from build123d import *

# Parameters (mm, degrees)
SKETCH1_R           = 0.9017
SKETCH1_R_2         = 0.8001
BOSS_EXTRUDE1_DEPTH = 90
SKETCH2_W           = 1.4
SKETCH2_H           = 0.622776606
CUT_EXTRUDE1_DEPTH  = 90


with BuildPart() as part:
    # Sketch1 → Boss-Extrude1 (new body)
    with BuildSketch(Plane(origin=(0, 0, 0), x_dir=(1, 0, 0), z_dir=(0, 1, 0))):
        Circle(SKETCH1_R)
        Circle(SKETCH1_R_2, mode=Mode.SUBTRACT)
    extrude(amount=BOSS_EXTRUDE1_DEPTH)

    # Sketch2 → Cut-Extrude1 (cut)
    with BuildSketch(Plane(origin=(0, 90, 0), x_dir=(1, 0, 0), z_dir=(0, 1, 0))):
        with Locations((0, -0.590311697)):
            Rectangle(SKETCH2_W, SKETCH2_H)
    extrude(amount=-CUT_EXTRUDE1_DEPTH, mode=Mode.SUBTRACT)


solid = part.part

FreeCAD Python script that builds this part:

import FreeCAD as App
import Part
import Sketcher

V = App.Vector


def add_polygon(sketch, points):
    """Adds a closed chain of lines whose ends are joined by coincident constraints."""
    first, n = sketch.GeometryCount, len(points)
    for a, b in zip(points, points[1:] + points[:1]):
        sketch.addGeometry(Part.LineSegment(App.Vector(*a, 0), App.Vector(*b, 0)), False)
    for i in range(n):
        sketch.addConstraint(Sketcher.Constraint("Coincident", first + i, 2, first + (i + 1) % n, 1))

doc = App.newDocument("Part")
body = doc.addObject("PartDesign::Body", "Body")

# Sketch on XZ plane
sketch1 = body.newObject("Sketcher::SketchObject", "Sketch")
sketch1.AttachmentSupport = (doc.getObject("XZ_Plane"), [""])
sketch1.MapMode = "FlatFace"
sketch1.addGeometry([
    Part.Circle(V(0, 0, 0), V(0, 0, 1), 0.9),
    Part.Circle(V(0, 0, 0), V(0, 0, 1), 0.8),
], False)
sketch1.addConstraint([
    Sketcher.Constraint("Coincident", 0, 3, -1, 1),
    Sketcher.Constraint("Coincident", 1, 3, -1, 1),
    Sketcher.Constraint("Diameter", 0, 1.8034),
    Sketcher.Constraint("Diameter", 1, 1.6002),
])
pad1 = body.newObject("PartDesign::Pad", "Pad")
pad1.Profile = sketch1
pad1.Length = 90
pad1.Reversed = True

# Sketch on XZ plane
sketch2 = body.newObject("Sketcher::SketchObject", "Sketch001")
sketch2.AttachmentSupport = (doc.getObject("XZ_Plane"), [""])
sketch2.MapMode = "FlatFace"
sketch2.AttachmentOffset = App.Placement(V(0, 0, -90), App.Rotation())
add_polygon(sketch2, [(-0.7, 0.3), (-0.7, 0.9), (0.7, 0.9), (0.7, 0.3)])  # lines 0-3
sketch2.addConstraint([
    Sketcher.Constraint("Vertical", 0),
    Sketcher.Constraint("Horizontal", 1),
    Sketcher.Constraint("Vertical", 2),
    Sketcher.Constraint("Horizontal", 3),
    Sketcher.Constraint("DistanceX", 1, 1, 1, 2, 1.4),
    Sketcher.Constraint("DistanceX", 0, 2, -1, 1, 0.7),
    Sketcher.Constraint("DistanceY", -1, 1, 0, 2, 0.9017),
    Sketcher.Constraint("DistanceY", 0, 1, 0, 2, 0.622777),
])
pocket1 = body.newObject("PartDesign::Pocket", "Pocket")
pocket1.Profile = sketch2
pocket1.Length = 90
pocket1.Reversed = True

doc.recompute()
